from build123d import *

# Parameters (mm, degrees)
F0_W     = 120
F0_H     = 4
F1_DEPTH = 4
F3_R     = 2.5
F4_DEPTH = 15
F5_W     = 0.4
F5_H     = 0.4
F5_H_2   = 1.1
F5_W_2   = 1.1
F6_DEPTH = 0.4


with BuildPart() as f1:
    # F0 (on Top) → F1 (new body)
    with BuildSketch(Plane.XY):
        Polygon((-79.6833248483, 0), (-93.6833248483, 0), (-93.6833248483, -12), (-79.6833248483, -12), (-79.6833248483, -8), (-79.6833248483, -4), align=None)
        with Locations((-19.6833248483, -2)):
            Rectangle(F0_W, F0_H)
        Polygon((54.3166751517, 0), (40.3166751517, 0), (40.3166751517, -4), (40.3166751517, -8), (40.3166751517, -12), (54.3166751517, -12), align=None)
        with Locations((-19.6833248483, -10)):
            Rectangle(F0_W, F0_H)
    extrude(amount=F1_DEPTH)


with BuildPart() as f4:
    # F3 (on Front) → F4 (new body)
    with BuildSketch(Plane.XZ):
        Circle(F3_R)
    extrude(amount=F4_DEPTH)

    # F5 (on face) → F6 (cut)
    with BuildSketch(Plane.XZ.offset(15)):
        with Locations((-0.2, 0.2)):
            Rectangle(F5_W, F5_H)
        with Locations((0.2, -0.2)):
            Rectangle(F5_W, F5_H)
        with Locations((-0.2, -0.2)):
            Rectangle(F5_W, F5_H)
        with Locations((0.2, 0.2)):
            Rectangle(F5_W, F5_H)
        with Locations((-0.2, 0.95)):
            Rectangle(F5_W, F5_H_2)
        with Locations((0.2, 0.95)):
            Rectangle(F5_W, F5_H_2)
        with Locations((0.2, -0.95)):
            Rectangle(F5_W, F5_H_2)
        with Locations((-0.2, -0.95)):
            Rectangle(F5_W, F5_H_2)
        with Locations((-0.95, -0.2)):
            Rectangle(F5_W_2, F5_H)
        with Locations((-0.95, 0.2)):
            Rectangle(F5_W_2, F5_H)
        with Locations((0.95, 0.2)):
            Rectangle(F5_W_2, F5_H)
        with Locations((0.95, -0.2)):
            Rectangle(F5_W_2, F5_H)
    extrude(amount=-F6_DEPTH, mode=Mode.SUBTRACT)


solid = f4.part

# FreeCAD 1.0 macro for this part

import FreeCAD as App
import Part
import Sketcher

V = App.Vector
Q = App.Units.Quantity


def add_polygon(sketch, points):
    """Adds a closed chain of lines whose ends are joined by coincident constraints."""
    first, n = sketch.GeometryCount, len(points)
    for a, b in zip(points, points[1:] + points[:1]):
        sketch.addGeometry(Part.LineSegment(App.Vector(*a, 0), App.Vector(*b, 0)), False)
    for i in range(n):
        sketch.addConstraint(Sketcher.Constraint("Coincident", first + i, 2, first + (i + 1) % n, 1))

doc = App.newDocument("Part")
body = doc.addObject("PartDesign::Body", "Body")

# Sketch on XY plane
sketch1 = body.newObject("Sketcher::SketchObject", "Sketch")
sketch1.AttachmentSupport = (doc.getObject("XY_Plane"), [""])
sketch1.MapMode = "FlatFace"
add_polygon(sketch1, [(-93.7, 0), (-93.7, -12), (54.3, -12), (54.3, 0)])  # lines 0-3
add_polygon(sketch1, [(-79.7, -8), (-79.7, -4), (40.3, -4), (40.3, -8)])  # lines 4-7
sketch1.addConstraint(Sketcher.Constraint("Vertical", 0))
sketch1.addConstraint(Sketcher.Constraint("Horizontal", 1))
sketch1.addConstraint(Sketcher.Constraint("Vertical", 2))
sketch1.addConstraint(Sketcher.Constraint("Horizontal", 3))
sketch1.addConstraint(Sketcher.Constraint("Vertical", 4))
sketch1.addConstraint(Sketcher.Constraint("Horizontal", 5))
sketch1.addConstraint(Sketcher.Constraint("Vertical", 6))
sketch1.addConstraint(Sketcher.Constraint("Horizontal", 7))
sketch1.addConstraint(Sketcher.Constraint("PointOnObject", 2, 2, -1))
sketch1.addConstraint(Sketcher.Constraint("DistanceX", 1, 1, 1, 2, Q("148 mm")))
sketch1.addConstraint(Sketcher.Constraint("DistanceX", 5, 1, 5, 2, Q("120 mm")))
sketch1.addConstraint(Sketcher.Constraint("DistanceY", 0, 2, 0, 1, Q("12 mm")))
sketch1.addConstraint(Sketcher.Constraint("DistanceY", 4, 1, 4, 2, Q("4 mm")))
sketch1.addConstraint(Sketcher.Constraint("DistanceY", 4, 2, -1, 1, Q("4 mm")))
sketch1.addConstraint(Sketcher.Constraint("DistanceX", 3, 2, 4, 2, Q("14 mm")))
sketch1.addConstraint(Sketcher.Constraint("DistanceX", 0, 2, -1, 1, Q("93.683325 mm")))
pad1 = body.newObject("PartDesign::Pad", "Pad")
pad1.Profile = sketch1
pad1.Length = 4
body2 = doc.addObject("PartDesign::Body", "Body001")

# Sketch on XZ plane
sketch2 = body2.newObject("Sketcher::SketchObject", "Sketch001")
sketch2.AttachmentSupport = (doc.getObject("XZ_Plane001"), [""])
sketch2.MapMode = "FlatFace"
sketch2.addGeometry(Part.Circle(V(0, 0, 0), V(0, 0, 1), 2.5), False)
sketch2.addConstraint(Sketcher.Constraint("Coincident", 0, 3, -1, 1))
sketch2.addConstraint(Sketcher.Constraint("Diameter", 0, Q("5 mm")))
pad2 = body2.newObject("PartDesign::Pad", "Pad001")
pad2.Profile = sketch2
pad2.Length = 15

# Sketch on XZ plane
sketch3 = body2.newObject("Sketcher::SketchObject", "Sketch002")
sketch3.AttachmentSupport = (doc.getObject("XZ_Plane001"), [""])
sketch3.MapMode = "FlatFace"
sketch3.AttachmentOffset = App.Placement(V(0, 0, 15), App.Rotation())
add_polygon(sketch3, [(0.4, -1.5), (0.4, -0.4), (1.5, -0.4), (1.5, 0.4), (0.4, 0.4), (0.4, 1.5), (-0.4, 1.5), (-0.4, 0.4), (-1.5, 0.4), (-1.5, -0.4), (-0.4, -0.4), (-0.4, -1.5)])  # lines 0-11
sketch3.addConstraint(Sketcher.Constraint("Vertical", 0))
sketch3.addConstraint(Sketcher.Constraint("Horizontal", 1))
sketch3.addConstraint(Sketcher.Constraint("Vertical", 2))
sketch3.addConstraint(Sketcher.Constraint("Horizontal", 3))
sketch3.addConstraint(Sketcher.Constraint("Vertical", 4))
sketch3.addConstraint(Sketcher.Constraint("Horizontal", 5))
sketch3.addConstraint(Sketcher.Constraint("Vertical", 6))
sketch3.addConstraint(Sketcher.Constraint("Horizontal", 7))
sketch3.addConstraint(Sketcher.Constraint("Vertical", 8))
sketch3.addConstraint(Sketcher.Constraint("Horizontal", 9))
sketch3.addConstraint(Sketcher.Constraint("Vertical", 10))
sketch3.addConstraint(Sketcher.Constraint("Horizontal", 11))
sketch3.addConstraint(Sketcher.Constraint("Symmetric", 0, 2, 6, 2, -1, 1))
sketch3.addConstraint(Sketcher.Constraint("Symmetric", 2, 2, 8, 2, -1, 1))
sketch3.addConstraint(Sketcher.Constraint("Symmetric", 4, 2, 10, 2, -1, 1))
sketch3.addConstraint(Sketcher.Constraint("Symmetric", 3, 2, 6, 2, -2))
sketch3.addConstraint(Sketcher.Constraint("Equal", 9, 0))
sketch3.addConstraint(Sketcher.Constraint("Equal", 11, 2))
sketch3.addConstraint(Sketcher.Constraint("DistanceX", 1, 1, 1, 2, Q("1.1 mm")))
sketch3.addConstraint(Sketcher.Constraint("DistanceX", 5, 2, 5, 1, Q("0.8 mm")))
pocket1 = body2.newObject("PartDesign::Pocket", "Pocket")
pocket1.Profile = sketch3
pocket1.Length = 0.4
body.Visibility = False

doc.recompute()
